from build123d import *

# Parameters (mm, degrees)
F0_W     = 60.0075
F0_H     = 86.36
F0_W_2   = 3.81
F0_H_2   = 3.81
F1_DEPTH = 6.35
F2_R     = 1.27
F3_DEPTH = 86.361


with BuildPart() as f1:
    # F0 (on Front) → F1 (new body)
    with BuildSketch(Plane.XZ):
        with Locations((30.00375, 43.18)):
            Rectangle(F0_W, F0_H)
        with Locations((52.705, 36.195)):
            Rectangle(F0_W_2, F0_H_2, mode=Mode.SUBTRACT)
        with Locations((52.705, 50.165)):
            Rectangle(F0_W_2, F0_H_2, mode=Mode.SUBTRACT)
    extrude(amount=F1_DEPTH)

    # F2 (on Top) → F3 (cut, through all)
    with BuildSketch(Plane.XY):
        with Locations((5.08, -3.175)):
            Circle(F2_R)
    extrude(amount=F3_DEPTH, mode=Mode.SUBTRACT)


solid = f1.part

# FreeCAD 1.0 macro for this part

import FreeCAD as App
import Part
import Sketcher

V = App.Vector
Q = App.Units.Quantity

doc = App.newDocument("Part")
body = doc.addObject("PartDesign::Body", "Body")

# Sketch on XZ plane
sketch1 = doc.addObject("Sketcher::SketchObject", "Sketch")
body.addObject(sketch1)
sketch1.AttachmentSupport = (doc.XZ_Plane, [""])
sketch1.MapMode = "FlatFace"
sketch1.addGeometry(Part.LineSegment(V(0, 86.4, 0), V(0, 0, 0)), False)
sketch1.addGeometry(Part.LineSegment(V(0, 0, 0), V(60, 0, 0)), False)
sketch1.addGeometry(Part.LineSegment(V(60, 0, 0), V(60, 86.4, 0)), False)
sketch1.addGeometry(Part.LineSegment(V(60, 86.4, 0), V(0, 86.4, 0)), False)
sketch1.addGeometry(Part.LineSegment(V(54.6, 34.3, 0), V(50.8, 34.3, 0)), False)
sketch1.addGeometry(Part.LineSegment(V(50.8, 34.3, 0), V(50.8, 38.1, 0)), False)
sketch1.addGeometry(Part.LineSegment(V(50.8, 38.1, 0), V(54.6, 38.1, 0)), False)
sketch1.addGeometry(Part.LineSegment(V(54.6, 38.1, 0), V(54.6, 34.3, 0)), False)
sketch1.addGeometry(Part.LineSegment(V(54.6, 48.3, 0), V(50.8, 48.3, 0)), False)
sketch1.addGeometry(Part.LineSegment(V(50.8, 48.3, 0), V(50.8, 52.1, 0)), False)
sketch1.addGeometry(Part.LineSegment(V(50.8, 52.1, 0), V(54.6, 52.1, 0)), False)
sketch1.addGeometry(Part.LineSegment(V(54.6, 52.1, 0), V(54.6, 48.3, 0)), False)
sketch1.addConstraint(Sketcher.Constraint("Coincident", 0, 2, 1, 1))
sketch1.addConstraint(Sketcher.Constraint("Coincident", 1, 2, 2, 1))
sketch1.addConstraint(Sketcher.Constraint("Coincident", 2, 2, 3, 1))
sketch1.addConstraint(Sketcher.Constraint("Coincident", 3, 2, 0, 1))
sketch1.addConstraint(Sketcher.Constraint("Coincident", 4, 2, 5, 1))
sketch1.addConstraint(Sketcher.Constraint("Coincident", 5, 2, 6, 1))
sketch1.addConstraint(Sketcher.Constraint("Coincident", 6, 2, 7, 1))
sketch1.addConstraint(Sketcher.Constraint("Coincident", 7, 2, 4, 1))
sketch1.addConstraint(Sketcher.Constraint("Coincident", 8, 2, 9, 1))
sketch1.addConstraint(Sketcher.Constraint("Coincident", 9, 2, 10, 1))
sketch1.addConstraint(Sketcher.Constraint("Coincident", 10, 2, 11, 1))
sketch1.addConstraint(Sketcher.Constraint("Coincident", 11, 2, 8, 1))
sketch1.addConstraint(Sketcher.Constraint("Vertical", 0))
sketch1.addConstraint(Sketcher.Constraint("Horizontal", 1))
sketch1.addConstraint(Sketcher.Constraint("Vertical", 2))
sketch1.addConstraint(Sketcher.Constraint("Horizontal", 3))
sketch1.addConstraint(Sketcher.Constraint("Horizontal", 4))
sketch1.addConstraint(Sketcher.Constraint("Vertical", 5))
sketch1.addConstraint(Sketcher.Constraint("Horizontal", 6))
sketch1.addConstraint(Sketcher.Constraint("Vertical", 7))
sketch1.addConstraint(Sketcher.Constraint("Horizontal", 8))
sketch1.addConstraint(Sketcher.Constraint("Vertical", 9))
sketch1.addConstraint(Sketcher.Constraint("Horizontal", 10))
sketch1.addConstraint(Sketcher.Constraint("Vertical", 11))
sketch1.addConstraint(Sketcher.Constraint("Coincident", 0, 2, -1, 1))
sketch1.addConstraint(Sketcher.Constraint("Vertical", 5, 2, 8, 2))
sketch1.addConstraint(Sketcher.Constraint("Vertical", 7, 2, 10, 2))
sketch1.addConstraint(Sketcher.Constraint("Equal", 10, 5))
sketch1.addConstraint(Sketcher.Constraint("Equal", 7, 9))
sketch1.addConstraint(Sketcher.Constraint("DistanceY", 0, 2, 0, 1, Q("3.4 in")))
sketch1.addConstraint(Sketcher.Constraint("DistanceX", -1, 1, 4, 2, Q("2 in")))
sketch1.addConstraint(Sketcher.Constraint("DistanceX", 4, 2, 4, 1, Q("0.15 in")))
sketch1.addConstraint(Sketcher.Constraint("DistanceY", -1, 1, 5, 2, Q("1.5 in")))
sketch1.addConstraint(Sketcher.Constraint("DistanceY", -1, 1, 8, 2, Q("1.9 in")))
sketch1.addConstraint(Sketcher.Constraint("DistanceX", 1, 1, 1, 2, Q("2.3625 in")))
pad1 = doc.addObject("PartDesign::Pad", "Pad")
body.addObject(pad1)
pad1.Profile = sketch1
pad1.Length = Q("0.25 in")

# Sketch on XY plane
sketch2 = doc.addObject("Sketcher::SketchObject", "Sketch001")
body.addObject(sketch2)
sketch2.AttachmentSupport = (doc.XY_Plane, [""])
sketch2.MapMode = "FlatFace"
sketch2.addGeometry(Part.Circle(V(5.1, -3.2, 0), V(0, 0, 1), 1.3), False)
sketch2.addConstraint(Sketcher.Constraint("Diameter", 0, Q("0.1 in")))
sketch2.addConstraint(Sketcher.Constraint("DistanceX", -1, 1, 0, 3, Q("0.2 in")))
sketch2.addConstraint(Sketcher.Constraint("DistanceY", 0, 3, -1, 1, Q("0.125 in")))
pocket1 = doc.addObject("PartDesign::Pocket", "Pocket")
body.addObject(pocket1)
pocket1.Profile = sketch2
pocket1.Type = "ThroughAll"
pocket1.Reversed = True

doc.recompute()
